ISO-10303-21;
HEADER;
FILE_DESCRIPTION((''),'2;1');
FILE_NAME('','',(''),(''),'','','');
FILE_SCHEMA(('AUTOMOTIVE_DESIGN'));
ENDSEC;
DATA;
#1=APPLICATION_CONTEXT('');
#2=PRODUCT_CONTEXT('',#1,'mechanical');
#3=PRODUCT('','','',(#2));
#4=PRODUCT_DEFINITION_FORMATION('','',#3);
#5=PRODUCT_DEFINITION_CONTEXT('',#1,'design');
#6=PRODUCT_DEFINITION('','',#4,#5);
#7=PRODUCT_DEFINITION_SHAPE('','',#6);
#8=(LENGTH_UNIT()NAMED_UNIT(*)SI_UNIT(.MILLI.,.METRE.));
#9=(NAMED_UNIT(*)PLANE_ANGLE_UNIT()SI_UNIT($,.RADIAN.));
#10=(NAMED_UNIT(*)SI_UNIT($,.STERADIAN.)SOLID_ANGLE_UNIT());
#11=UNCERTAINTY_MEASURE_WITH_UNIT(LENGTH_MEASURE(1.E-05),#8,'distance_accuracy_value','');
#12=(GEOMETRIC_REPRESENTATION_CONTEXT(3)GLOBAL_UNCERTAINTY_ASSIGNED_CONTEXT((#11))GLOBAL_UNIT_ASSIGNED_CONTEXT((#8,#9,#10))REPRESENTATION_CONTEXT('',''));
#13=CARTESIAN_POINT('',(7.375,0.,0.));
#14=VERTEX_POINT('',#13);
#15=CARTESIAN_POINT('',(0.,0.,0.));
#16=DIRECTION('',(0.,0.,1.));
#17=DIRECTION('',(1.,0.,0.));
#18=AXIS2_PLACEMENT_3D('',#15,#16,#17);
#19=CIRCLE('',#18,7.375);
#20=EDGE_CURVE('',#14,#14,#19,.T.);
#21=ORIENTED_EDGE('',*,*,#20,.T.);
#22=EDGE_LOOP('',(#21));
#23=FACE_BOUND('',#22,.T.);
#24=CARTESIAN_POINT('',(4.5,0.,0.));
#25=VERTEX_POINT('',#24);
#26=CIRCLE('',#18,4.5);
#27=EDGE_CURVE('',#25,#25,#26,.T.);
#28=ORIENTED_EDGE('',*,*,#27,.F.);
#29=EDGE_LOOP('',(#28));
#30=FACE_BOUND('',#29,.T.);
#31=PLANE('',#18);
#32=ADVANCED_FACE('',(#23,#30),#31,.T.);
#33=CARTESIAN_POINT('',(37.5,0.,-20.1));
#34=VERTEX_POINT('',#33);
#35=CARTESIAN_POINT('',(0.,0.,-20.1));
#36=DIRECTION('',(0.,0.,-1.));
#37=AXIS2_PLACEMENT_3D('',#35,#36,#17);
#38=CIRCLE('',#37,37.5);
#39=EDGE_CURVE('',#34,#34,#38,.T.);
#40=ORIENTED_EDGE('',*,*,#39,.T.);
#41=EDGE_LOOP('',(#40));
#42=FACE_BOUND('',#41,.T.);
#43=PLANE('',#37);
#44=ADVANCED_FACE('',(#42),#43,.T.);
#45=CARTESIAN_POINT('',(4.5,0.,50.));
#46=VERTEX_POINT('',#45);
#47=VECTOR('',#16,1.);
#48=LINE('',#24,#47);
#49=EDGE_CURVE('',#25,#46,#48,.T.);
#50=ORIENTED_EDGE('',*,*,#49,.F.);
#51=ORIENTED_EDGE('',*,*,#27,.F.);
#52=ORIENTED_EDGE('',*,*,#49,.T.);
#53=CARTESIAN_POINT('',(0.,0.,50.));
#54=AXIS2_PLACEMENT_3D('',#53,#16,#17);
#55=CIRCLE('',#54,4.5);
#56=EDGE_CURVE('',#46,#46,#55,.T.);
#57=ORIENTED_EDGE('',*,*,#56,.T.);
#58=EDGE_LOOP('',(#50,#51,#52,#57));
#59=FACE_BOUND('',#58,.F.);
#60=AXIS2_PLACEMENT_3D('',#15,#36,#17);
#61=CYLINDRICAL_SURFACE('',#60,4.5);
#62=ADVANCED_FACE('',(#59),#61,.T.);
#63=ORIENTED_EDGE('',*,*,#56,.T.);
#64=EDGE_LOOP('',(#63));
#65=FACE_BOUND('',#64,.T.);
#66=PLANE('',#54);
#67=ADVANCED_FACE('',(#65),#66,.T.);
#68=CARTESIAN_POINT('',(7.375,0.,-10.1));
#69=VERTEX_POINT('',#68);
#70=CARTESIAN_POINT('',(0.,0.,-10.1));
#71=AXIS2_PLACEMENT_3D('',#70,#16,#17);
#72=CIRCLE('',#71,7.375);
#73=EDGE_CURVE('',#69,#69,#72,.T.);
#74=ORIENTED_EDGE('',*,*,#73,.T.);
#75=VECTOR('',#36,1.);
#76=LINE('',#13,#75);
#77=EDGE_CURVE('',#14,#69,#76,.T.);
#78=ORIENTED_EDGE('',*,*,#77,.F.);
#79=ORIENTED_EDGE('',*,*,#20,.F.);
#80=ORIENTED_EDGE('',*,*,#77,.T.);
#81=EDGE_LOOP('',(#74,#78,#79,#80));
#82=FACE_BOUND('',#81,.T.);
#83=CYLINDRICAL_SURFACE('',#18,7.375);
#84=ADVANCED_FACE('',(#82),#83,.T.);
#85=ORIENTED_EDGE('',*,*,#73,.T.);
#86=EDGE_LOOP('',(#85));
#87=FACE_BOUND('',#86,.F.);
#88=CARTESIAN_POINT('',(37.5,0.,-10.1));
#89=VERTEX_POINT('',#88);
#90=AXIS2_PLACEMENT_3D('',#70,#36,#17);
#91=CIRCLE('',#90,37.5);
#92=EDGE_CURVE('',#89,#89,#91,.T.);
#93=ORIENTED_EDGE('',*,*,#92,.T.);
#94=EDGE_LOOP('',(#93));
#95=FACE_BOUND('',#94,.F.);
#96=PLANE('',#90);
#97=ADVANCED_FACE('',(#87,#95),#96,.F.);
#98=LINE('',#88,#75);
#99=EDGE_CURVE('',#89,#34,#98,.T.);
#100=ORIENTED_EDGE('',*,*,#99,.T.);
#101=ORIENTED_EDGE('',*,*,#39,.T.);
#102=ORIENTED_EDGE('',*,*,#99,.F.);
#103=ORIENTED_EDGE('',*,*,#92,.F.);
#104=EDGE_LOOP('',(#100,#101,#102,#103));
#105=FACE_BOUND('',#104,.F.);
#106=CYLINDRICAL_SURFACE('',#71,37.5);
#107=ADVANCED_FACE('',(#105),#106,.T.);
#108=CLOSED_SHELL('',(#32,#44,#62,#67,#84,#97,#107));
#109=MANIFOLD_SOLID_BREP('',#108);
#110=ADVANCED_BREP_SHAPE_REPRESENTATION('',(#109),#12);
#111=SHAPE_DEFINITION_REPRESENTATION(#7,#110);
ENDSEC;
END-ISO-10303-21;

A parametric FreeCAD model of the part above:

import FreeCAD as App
import Part
import Sketcher
from FreeCAD import Vector
Q = App.Units.Quantity

doc = App.newDocument("Part")
body = doc.addObject("PartDesign::Body", "Body")

sketch1 = body.newObject("Sketcher::SketchObject", "Sketch")
sketch1.AttachmentSupport = (doc.getObject("XY_Plane"), [""])
sketch1.MapMode = "FlatFace"
sketch1.addGeometry(Part.Circle(Vector(0, 0, 0), Vector(0, 0, 1), 4.5), False)
sketch1.addConstraint(Sketcher.Constraint("Coincident", 0, 3, -1, 1))
sketch1.addConstraint(Sketcher.Constraint("Diameter", 0, Q("9 mm")))
pad1 = body.newObject("PartDesign::Pad", "Pad")
pad1.Profile = sketch1
pad1.Length = 50

sketch2 = body.newObject("Sketcher::SketchObject", "Sketch001")
sketch2.AttachmentSupport = (doc.getObject("XY_Plane"), [""])
sketch2.MapMode = "FlatFace"
sketch2.addGeometry(Part.Circle(Vector(0, 0, 0), Vector(0, 0, 1), 7), False)
sketch2.addConstraint(Sketcher.Constraint("Coincident", 0, 3, -1, 1))
sketch2.addConstraint(Sketcher.Constraint("Diameter", 0, Q("14.75 mm")))
pad2 = body.newObject("PartDesign::Pad", "Pad001")
pad2.Profile = sketch2
pad2.Length = 10.1
pad2.Reversed = True

sketch3 = body.newObject("Sketcher::SketchObject", "Sketch002")
sketch3.AttachmentSupport = (doc.getObject("XY_Plane"), [""])
sketch3.MapMode = "FlatFace"
sketch3.AttachmentOffset = App.Placement(Vector(0, 0, -10.1), App.Rotation())
sketch3.addGeometry(Part.Circle(Vector(0, 0, 0), Vector(0, 0, 1), 38), False)
sketch3.addConstraint(Sketcher.Constraint("Coincident", 0, 3, -1, 1))
sketch3.addConstraint(Sketcher.Constraint("Diameter", 0, Q("75 mm")))
pad3 = body.newObject("PartDesign::Pad", "Pad002")
pad3.Profile = sketch3
pad3.Length = 10
pad3.Reversed = True

doc.recompute()
